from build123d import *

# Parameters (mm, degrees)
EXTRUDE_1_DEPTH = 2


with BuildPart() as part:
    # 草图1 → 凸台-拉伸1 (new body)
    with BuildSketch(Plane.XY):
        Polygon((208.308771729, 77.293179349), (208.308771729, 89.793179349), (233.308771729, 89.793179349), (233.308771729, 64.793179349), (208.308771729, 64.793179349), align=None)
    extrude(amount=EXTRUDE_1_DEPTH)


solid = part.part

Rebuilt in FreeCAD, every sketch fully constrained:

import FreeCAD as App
import Part
import Sketcher
from FreeCAD import Vector
Q = App.Units.Quantity


def add_polygon(sketch, points):
    """Adds a closed chain of lines whose ends are joined by coincident constraints."""
    first, n = sketch.GeometryCount, len(points)
    for a, b in zip(points, points[1:] + points[:1]):
        sketch.addGeometry(Part.LineSegment(App.Vector(*a, 0), App.Vector(*b, 0)), False)
    for i in range(n):
        sketch.addConstraint(Sketcher.Constraint("Coincident", first + i, 2, first + (i + 1) % n, 1))

doc = App.newDocument("Part")
params = doc.addObject("Spreadsheet::Sheet", "Params")
for row, (alias, value) in enumerate([
    ("sketch1_width", "25 mm"),
    ("pad1_length", "2 mm"),
], start=1):
    params.set(f"A{row}", alias)
    params.set(f"B{row}", "=" + value)
    params.setAlias(f"B{row}", alias)

body = doc.addObject("PartDesign::Body", "Body")

# Sketch on XY plane
sketch1 = doc.addObject("Sketcher::SketchObject", "Sketch")
body.addObject(sketch1)
sketch1.AttachmentSupport = (doc.XY_Plane, [""])
sketch1.MapMode = "FlatFace"
add_polygon(sketch1, [(208, 90), (208, 65), (233, 65), (233, 90)])  # lines 0-3
sketch1.addConstraint(Sketcher.Constraint("Vertical", 0))
sketch1.addConstraint(Sketcher.Constraint("Horizontal", 1))
sketch1.addConstraint(Sketcher.Constraint("Vertical", 2))
sketch1.addConstraint(Sketcher.Constraint("Horizontal", 3))
sketch1.addConstraint(Sketcher.Constraint("Equal", 3, 0))
sketch1.addConstraint(Sketcher.Constraint("DistanceX", 1, 1, 1, 2, Q("25 mm")))
sketch1.addConstraint(Sketcher.Constraint("DistanceX", -1, 1, 0, 2, Q("208.308772 mm")))
sketch1.addConstraint(Sketcher.Constraint("DistanceY", -1, 1, 0, 2, Q("64.793179 mm")))
sketch1.setExpression("Constraints[9]", "Params.sketch1_width")
pad1 = doc.addObject("PartDesign::Pad", "Pad")
body.addObject(pad1)
pad1.Profile = sketch1
pad1.setExpression("Length", "Params.pad1_length")

doc.recompute()
